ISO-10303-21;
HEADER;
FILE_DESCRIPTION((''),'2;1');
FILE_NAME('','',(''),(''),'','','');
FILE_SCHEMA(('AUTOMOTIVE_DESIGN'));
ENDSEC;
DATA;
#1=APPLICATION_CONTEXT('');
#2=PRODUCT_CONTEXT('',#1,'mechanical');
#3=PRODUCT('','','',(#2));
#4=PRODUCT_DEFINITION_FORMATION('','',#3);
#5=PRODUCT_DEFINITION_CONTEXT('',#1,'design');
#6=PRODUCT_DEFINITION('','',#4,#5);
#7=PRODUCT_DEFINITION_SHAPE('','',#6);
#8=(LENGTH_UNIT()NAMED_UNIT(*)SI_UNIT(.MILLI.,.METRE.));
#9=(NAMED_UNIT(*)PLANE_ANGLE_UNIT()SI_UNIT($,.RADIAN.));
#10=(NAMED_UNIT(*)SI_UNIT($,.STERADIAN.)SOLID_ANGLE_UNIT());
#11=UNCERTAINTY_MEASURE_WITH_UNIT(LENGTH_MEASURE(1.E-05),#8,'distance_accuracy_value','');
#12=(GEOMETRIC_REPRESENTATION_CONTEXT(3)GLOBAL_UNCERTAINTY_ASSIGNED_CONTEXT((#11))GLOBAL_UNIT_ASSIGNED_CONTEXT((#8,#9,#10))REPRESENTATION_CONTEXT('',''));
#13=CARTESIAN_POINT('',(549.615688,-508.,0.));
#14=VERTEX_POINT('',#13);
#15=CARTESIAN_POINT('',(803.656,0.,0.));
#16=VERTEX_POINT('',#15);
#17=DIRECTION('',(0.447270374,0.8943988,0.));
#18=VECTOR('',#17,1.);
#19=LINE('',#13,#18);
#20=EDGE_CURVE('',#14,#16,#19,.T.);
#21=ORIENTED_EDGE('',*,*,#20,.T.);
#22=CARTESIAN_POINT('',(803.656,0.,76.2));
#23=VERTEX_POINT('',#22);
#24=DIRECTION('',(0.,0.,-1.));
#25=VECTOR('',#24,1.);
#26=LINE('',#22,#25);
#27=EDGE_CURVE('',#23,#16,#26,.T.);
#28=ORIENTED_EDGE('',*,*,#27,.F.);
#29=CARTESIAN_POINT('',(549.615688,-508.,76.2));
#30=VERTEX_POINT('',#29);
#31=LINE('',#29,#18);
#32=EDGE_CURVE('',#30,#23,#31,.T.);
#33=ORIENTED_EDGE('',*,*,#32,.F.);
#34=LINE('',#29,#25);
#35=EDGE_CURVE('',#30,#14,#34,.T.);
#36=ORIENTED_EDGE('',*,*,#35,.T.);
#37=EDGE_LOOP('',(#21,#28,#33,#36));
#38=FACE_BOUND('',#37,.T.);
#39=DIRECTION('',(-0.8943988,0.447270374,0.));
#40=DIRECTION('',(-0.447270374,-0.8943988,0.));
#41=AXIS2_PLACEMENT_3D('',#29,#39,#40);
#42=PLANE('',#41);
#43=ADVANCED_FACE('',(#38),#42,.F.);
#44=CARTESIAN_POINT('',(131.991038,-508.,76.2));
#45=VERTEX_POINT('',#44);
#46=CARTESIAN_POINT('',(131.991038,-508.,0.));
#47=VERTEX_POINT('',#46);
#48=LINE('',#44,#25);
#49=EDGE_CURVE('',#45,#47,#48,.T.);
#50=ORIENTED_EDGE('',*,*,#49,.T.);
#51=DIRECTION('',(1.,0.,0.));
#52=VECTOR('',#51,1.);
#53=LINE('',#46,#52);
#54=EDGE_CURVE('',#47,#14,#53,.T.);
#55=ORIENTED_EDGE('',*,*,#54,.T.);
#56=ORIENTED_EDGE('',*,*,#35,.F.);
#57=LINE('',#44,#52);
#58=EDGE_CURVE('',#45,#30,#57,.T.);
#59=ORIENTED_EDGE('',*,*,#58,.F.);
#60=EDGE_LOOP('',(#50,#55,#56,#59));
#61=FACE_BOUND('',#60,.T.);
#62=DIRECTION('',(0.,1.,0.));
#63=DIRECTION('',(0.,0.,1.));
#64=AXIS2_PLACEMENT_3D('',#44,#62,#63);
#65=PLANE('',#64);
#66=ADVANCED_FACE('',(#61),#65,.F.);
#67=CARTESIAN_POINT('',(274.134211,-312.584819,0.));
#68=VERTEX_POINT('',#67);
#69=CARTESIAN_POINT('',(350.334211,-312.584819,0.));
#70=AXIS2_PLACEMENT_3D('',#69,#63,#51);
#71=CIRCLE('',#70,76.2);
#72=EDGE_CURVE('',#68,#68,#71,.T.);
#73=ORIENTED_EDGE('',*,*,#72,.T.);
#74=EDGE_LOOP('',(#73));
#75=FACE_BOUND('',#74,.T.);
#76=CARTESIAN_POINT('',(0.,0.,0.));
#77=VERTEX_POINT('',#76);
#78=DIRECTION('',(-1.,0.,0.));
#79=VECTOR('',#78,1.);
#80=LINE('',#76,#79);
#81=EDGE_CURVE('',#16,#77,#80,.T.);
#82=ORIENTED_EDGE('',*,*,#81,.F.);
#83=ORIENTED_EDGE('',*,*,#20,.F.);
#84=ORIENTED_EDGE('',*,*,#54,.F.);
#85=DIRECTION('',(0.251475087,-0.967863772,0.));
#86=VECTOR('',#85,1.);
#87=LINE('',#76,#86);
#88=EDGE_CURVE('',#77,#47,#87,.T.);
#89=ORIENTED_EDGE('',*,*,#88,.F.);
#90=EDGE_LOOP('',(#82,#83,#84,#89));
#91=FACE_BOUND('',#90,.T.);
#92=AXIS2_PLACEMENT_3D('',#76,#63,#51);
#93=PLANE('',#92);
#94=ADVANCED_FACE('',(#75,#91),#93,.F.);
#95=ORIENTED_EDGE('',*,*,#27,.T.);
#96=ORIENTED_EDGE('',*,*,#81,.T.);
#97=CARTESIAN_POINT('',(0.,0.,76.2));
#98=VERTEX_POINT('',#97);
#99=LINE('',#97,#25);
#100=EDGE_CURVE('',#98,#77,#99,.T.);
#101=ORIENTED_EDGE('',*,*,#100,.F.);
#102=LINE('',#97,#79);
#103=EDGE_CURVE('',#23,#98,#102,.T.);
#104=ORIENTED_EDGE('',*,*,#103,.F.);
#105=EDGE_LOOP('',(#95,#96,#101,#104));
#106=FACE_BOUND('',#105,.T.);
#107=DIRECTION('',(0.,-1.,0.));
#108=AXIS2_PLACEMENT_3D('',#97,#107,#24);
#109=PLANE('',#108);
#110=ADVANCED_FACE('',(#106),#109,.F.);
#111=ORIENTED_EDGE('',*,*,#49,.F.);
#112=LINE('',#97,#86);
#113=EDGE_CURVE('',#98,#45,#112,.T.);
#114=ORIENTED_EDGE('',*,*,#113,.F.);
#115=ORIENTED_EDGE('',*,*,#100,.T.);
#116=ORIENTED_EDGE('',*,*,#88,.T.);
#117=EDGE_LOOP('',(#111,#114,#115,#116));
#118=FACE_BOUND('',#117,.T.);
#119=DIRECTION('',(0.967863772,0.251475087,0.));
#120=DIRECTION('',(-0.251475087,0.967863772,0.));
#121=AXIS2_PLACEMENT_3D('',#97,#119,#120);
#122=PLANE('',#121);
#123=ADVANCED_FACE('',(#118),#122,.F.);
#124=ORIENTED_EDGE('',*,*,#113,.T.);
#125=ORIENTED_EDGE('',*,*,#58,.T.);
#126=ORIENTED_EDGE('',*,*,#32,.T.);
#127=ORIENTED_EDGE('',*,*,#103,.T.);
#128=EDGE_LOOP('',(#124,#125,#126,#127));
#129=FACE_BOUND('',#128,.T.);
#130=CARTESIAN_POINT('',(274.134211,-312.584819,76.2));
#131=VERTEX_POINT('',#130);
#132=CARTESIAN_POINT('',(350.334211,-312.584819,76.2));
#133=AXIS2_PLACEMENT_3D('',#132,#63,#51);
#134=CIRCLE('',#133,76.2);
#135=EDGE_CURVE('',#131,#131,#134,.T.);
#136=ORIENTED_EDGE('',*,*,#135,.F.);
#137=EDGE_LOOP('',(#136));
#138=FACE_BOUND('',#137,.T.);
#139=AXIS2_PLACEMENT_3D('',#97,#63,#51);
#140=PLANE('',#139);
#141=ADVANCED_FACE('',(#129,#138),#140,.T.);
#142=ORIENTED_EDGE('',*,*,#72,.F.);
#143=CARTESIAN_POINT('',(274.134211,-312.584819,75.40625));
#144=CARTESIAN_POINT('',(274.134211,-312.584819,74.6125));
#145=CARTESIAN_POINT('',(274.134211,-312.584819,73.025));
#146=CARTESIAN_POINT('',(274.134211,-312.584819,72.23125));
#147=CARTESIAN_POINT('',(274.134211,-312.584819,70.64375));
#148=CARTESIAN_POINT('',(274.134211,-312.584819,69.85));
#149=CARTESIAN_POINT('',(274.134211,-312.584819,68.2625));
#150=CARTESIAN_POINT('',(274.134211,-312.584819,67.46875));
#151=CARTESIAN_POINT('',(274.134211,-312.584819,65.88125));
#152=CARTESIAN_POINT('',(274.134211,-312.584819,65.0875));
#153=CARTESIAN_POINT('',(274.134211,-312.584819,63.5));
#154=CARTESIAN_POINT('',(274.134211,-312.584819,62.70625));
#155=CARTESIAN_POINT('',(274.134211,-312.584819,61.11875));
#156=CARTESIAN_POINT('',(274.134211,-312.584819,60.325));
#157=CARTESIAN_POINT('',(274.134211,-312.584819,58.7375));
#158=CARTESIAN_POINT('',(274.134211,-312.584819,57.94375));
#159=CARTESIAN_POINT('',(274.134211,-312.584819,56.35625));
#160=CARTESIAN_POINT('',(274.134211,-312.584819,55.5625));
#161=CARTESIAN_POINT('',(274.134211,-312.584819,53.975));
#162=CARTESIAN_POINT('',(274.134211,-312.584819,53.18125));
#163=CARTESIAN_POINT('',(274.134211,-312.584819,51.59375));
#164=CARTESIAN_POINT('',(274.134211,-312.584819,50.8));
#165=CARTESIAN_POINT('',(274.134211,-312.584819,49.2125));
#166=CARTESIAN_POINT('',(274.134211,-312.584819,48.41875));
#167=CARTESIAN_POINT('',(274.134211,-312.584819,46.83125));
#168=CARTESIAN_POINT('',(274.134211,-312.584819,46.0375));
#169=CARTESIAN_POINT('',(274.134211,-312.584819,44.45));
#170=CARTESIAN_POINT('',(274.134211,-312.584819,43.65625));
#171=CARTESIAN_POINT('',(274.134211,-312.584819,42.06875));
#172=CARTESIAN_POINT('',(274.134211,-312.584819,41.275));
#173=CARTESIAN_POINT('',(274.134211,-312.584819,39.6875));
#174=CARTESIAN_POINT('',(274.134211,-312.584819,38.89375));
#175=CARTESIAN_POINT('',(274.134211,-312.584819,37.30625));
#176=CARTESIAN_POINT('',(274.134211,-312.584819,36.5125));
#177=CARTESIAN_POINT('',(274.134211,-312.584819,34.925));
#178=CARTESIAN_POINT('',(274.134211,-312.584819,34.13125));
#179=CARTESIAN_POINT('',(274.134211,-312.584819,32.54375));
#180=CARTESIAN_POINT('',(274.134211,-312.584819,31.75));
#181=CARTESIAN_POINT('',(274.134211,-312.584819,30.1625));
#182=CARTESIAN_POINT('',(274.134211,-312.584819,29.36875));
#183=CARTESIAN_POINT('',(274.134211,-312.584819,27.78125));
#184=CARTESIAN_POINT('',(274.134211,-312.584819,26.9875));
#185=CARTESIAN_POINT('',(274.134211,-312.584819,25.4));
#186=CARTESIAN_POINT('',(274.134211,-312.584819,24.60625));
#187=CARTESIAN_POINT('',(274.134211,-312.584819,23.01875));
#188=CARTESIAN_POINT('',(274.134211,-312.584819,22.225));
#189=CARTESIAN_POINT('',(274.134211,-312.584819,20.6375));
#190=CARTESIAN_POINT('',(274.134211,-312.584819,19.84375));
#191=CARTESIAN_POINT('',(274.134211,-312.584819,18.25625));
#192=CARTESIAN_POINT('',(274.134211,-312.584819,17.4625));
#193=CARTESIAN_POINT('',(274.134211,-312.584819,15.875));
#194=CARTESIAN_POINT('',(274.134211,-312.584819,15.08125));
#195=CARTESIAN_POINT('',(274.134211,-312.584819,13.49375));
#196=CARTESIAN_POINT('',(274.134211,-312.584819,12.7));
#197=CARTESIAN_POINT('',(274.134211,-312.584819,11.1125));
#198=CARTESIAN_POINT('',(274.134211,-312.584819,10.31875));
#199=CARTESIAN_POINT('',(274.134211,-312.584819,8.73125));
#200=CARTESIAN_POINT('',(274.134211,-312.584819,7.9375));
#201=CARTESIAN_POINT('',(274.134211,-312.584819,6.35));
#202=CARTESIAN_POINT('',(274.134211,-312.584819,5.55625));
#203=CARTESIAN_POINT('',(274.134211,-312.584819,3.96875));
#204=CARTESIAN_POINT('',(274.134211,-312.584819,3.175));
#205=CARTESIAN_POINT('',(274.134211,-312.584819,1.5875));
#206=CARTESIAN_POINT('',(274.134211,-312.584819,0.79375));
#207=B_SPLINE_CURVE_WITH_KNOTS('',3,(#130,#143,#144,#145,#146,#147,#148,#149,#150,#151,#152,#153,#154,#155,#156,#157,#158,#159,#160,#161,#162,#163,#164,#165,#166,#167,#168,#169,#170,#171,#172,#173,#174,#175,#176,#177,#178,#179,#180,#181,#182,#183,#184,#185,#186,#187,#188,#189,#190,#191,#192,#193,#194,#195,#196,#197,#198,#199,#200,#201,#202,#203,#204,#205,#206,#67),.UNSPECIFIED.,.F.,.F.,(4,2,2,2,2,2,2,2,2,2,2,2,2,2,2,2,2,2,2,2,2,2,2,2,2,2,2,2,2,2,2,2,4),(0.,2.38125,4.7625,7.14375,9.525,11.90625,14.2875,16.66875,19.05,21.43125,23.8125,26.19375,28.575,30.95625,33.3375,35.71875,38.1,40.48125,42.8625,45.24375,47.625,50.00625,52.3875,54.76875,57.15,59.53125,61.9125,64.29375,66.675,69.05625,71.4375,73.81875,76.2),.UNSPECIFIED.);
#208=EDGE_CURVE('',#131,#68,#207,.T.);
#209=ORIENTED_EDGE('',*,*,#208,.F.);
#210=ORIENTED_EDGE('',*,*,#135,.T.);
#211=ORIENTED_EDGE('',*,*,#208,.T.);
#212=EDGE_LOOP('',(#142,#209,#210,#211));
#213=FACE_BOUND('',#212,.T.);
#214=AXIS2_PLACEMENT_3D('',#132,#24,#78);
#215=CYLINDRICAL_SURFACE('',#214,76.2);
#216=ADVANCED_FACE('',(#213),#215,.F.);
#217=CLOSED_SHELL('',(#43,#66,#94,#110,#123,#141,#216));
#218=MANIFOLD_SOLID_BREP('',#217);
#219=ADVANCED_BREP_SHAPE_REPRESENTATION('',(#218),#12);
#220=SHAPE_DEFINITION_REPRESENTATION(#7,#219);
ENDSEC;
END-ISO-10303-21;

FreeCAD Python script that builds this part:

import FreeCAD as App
import Part
import Sketcher
Q = App.Units.Quantity


def add_polygon(sketch, points):
    """Adds a closed chain of lines whose ends are joined by coincident constraints."""
    first, n = sketch.GeometryCount, len(points)
    for a, b in zip(points, points[1:] + points[:1]):
        sketch.addGeometry(Part.LineSegment(App.Vector(*a, 0), App.Vector(*b, 0)), False)
    for i in range(n):
        sketch.addConstraint(Sketcher.Constraint("Coincident", first + i, 2, first + (i + 1) % n, 1))

doc = App.newDocument("Part")
body = doc.addObject("PartDesign::Body", "Body")

sketch1 = doc.addObject("Sketcher::SketchObject", "Sketch")
body.addObject(sketch1)
sketch1.AttachmentSupport = (doc.XY_Plane, [""])
sketch1.MapMode = "FlatFace"
add_polygon(sketch1, [(804, 0), (0, 0), (132, -508), (550, -508)])
sketch1.addGeometry(Part.Circle(App.Vector(350, -313, 0), App.Vector(0, 0, 1), 76), False)
sketch1.addConstraint(Sketcher.Constraint("Horizontal", 0))
sketch1.addConstraint(Sketcher.Constraint("Horizontal", 2))
sketch1.addConstraint(Sketcher.Constraint("Coincident", 0, 2, -1, 1))
sketch1.addConstraint(Sketcher.Constraint("Diameter", 4, Q("6 in")))
sketch1.addConstraint(Sketcher.Constraint("DistanceY", 1, 2, -1, 1, Q("20 in")))
sketch1.addConstraint(Sketcher.Constraint("DistanceX", 0, 2, 0, 1, Q("31.64 in")))
sketch1.addConstraint(Sketcher.Constraint("DistanceX", 2, 1, 2, 2, 417.62465))
sketch1.addConstraint(Sketcher.Constraint("DistanceX", -1, 1, 4, 3, 350.334211))
sketch1.addConstraint(Sketcher.Constraint("DistanceY", 4, 3, -1, 1, 312.584819))
sketch1.addConstraint(Sketcher.Constraint("DistanceX", -1, 1, 1, 2, 131.991038))
pad1 = doc.addObject("PartDesign::Pad", "Pad")
body.addObject(pad1)
pad1.Profile = sketch1
pad1.Length = Q("3 in")

doc.recompute()
